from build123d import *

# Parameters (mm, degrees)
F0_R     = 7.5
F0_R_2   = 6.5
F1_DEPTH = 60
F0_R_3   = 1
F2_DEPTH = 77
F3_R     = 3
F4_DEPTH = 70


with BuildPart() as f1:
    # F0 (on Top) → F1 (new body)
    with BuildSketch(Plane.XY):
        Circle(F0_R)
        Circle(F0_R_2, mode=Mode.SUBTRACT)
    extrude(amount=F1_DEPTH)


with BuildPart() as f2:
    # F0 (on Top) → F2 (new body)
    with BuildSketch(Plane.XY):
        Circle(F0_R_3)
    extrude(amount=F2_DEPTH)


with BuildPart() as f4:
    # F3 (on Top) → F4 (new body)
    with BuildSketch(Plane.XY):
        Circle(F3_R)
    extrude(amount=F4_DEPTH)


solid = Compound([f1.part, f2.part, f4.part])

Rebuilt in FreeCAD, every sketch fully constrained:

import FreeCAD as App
import Part
import Sketcher

V = App.Vector
Q = App.Units.Quantity

doc = App.newDocument("Part")
body = doc.addObject("PartDesign::Body", "Body")

# Sketch on XY plane
sketch1 = body.newObject("Sketcher::SketchObject", "Sketch")
sketch1.AttachmentSupport = (doc.getObject("XY_Plane"), [""])
sketch1.MapMode = "FlatFace"
sketch1.addGeometry(Part.Circle(V(0, 0, 0), V(0, 0, 1), 8), False)
sketch1.addGeometry(Part.Circle(V(0, 0, 0), V(0, 0, 1), 6), False)
sketch1.addConstraint(Sketcher.Constraint("Coincident", 0, 3, -1, 1))
sketch1.addConstraint(Sketcher.Constraint("Coincident", 1, 3, -1, 1))
sketch1.addConstraint(Sketcher.Constraint("Diameter", 0, Q("15 mm")))
sketch1.addConstraint(Sketcher.Constraint("Diameter", 1, Q("13 mm")))
pad1 = body.newObject("PartDesign::Pad", "Pad")
pad1.Profile = sketch1
pad1.Length = 60
body2 = doc.addObject("PartDesign::Body", "Body001")

# Sketch on XY plane
sketch2 = body2.newObject("Sketcher::SketchObject", "Sketch001")
sketch2.AttachmentSupport = (doc.getObject("XY_Plane001"), [""])
sketch2.MapMode = "FlatFace"
sketch2.addGeometry(Part.Circle(V(0, 0, 0), V(0, 0, 1), 1), False)
sketch2.addConstraint(Sketcher.Constraint("Coincident", 0, 3, -1, 1))
sketch2.addConstraint(Sketcher.Constraint("Diameter", 0, Q("2 mm")))
pad2 = body2.newObject("PartDesign::Pad", "Pad001")
pad2.Profile = sketch2
pad2.Length = 77
body3 = doc.addObject("PartDesign::Body", "Body002")

# Sketch on XY plane
sketch3 = body3.newObject("Sketcher::SketchObject", "Sketch002")
sketch3.AttachmentSupport = (doc.getObject("XY_Plane002"), [""])
sketch3.MapMode = "FlatFace"
sketch3.addGeometry(Part.Circle(V(0, 0, 0), V(0, 0, 1), 3), False)
sketch3.addConstraint(Sketcher.Constraint("Coincident", 0, 3, -1, 1))
sketch3.addConstraint(Sketcher.Constraint("Diameter", 0, Q("6 mm")))
pad3 = body3.newObject("PartDesign::Pad", "Pad002")
pad3.Profile = sketch3
pad3.Length = 70

doc.recompute()
